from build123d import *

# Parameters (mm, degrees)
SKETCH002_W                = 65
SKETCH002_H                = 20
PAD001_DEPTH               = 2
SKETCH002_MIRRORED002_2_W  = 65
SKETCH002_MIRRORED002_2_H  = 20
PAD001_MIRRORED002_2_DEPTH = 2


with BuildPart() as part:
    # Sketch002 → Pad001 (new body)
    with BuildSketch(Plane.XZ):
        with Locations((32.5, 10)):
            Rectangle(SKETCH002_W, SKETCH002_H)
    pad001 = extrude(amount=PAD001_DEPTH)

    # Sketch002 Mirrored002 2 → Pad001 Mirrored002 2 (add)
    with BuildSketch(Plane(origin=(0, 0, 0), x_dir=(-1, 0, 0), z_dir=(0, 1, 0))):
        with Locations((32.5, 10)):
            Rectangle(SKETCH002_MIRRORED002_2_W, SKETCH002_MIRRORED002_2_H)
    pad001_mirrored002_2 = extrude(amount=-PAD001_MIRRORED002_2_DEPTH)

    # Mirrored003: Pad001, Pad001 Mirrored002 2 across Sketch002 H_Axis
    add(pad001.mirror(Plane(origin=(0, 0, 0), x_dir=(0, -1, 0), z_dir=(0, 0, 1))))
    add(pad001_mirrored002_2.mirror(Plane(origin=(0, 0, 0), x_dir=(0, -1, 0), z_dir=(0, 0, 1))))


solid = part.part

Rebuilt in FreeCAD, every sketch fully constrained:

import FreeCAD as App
import Part
import Sketcher


def add_polygon(sketch, points):
    """Adds a closed chain of lines whose ends are joined by coincident constraints."""
    first, n = sketch.GeometryCount, len(points)
    for a, b in zip(points, points[1:] + points[:1]):
        sketch.addGeometry(Part.LineSegment(App.Vector(*a, 0), App.Vector(*b, 0)), False)
    for i in range(n):
        sketch.addConstraint(Sketcher.Constraint("Coincident", first + i, 2, first + (i + 1) % n, 1))

doc = App.newDocument("Part")
body = doc.addObject("PartDesign::Body", "Body")

# Sketch on XZ plane
sketch1 = body.newObject("Sketcher::SketchObject", "Sketch")
sketch1.AttachmentSupport = (doc.getObject("XZ_Plane"), [""])
sketch1.MapMode = "FlatFace"
add_polygon(sketch1, [(0, 20), (0, 0), (65, 0), (65, 20)])  # lines 0-3
sketch1.addConstraint(Sketcher.Constraint("Vertical", 0))
sketch1.addConstraint(Sketcher.Constraint("Horizontal", 1))
sketch1.addConstraint(Sketcher.Constraint("Vertical", 2))
sketch1.addConstraint(Sketcher.Constraint("Horizontal", 3))
sketch1.addConstraint(Sketcher.Constraint("Coincident", 0, 2, -1, 1))
sketch1.addConstraint(Sketcher.Constraint("DistanceX", 1, 1, 1, 2, 65.0))
sketch1.addConstraint(Sketcher.Constraint("DistanceY", 0, 2, 0, 1, 20.0))
pad1 = body.newObject("PartDesign::Pad", "Pad")
pad1.Profile = sketch1
pad1.Length = 2

# Sketch on XZ plane
sketch2 = body.newObject("Sketcher::SketchObject", "Sketch001")
sketch2.AttachmentSupport = (doc.getObject("XZ_Plane"), [""])
sketch2.MapMode = "FlatFace"
add_polygon(sketch2, [(0, 20), (0, 0), (-65, 0), (-65, 20)])  # lines 0-3
sketch2.addConstraint(Sketcher.Constraint("Vertical", 0))
sketch2.addConstraint(Sketcher.Constraint("Horizontal", 1))
sketch2.addConstraint(Sketcher.Constraint("Vertical", 2))
sketch2.addConstraint(Sketcher.Constraint("Horizontal", 3))
sketch2.addConstraint(Sketcher.Constraint("Coincident", 0, 2, -1, 1))
sketch2.addConstraint(Sketcher.Constraint("DistanceX", 1, 2, 1, 1, 65.0))
sketch2.addConstraint(Sketcher.Constraint("DistanceY", 0, 2, 0, 1, 20.0))
pad2 = body.newObject("PartDesign::Pad", "Pad001")
pad2.Profile = sketch2
pad2.Length = 2
doc.recompute()

mirrored = body.newObject("PartDesign::Mirrored", "Mirrored")
mirrored.Originals = [pad1, pad2]
mirrored.MirrorPlane = (doc.getObject("XY_Plane"), [""])
body.Tip = mirrored

doc.recompute()
